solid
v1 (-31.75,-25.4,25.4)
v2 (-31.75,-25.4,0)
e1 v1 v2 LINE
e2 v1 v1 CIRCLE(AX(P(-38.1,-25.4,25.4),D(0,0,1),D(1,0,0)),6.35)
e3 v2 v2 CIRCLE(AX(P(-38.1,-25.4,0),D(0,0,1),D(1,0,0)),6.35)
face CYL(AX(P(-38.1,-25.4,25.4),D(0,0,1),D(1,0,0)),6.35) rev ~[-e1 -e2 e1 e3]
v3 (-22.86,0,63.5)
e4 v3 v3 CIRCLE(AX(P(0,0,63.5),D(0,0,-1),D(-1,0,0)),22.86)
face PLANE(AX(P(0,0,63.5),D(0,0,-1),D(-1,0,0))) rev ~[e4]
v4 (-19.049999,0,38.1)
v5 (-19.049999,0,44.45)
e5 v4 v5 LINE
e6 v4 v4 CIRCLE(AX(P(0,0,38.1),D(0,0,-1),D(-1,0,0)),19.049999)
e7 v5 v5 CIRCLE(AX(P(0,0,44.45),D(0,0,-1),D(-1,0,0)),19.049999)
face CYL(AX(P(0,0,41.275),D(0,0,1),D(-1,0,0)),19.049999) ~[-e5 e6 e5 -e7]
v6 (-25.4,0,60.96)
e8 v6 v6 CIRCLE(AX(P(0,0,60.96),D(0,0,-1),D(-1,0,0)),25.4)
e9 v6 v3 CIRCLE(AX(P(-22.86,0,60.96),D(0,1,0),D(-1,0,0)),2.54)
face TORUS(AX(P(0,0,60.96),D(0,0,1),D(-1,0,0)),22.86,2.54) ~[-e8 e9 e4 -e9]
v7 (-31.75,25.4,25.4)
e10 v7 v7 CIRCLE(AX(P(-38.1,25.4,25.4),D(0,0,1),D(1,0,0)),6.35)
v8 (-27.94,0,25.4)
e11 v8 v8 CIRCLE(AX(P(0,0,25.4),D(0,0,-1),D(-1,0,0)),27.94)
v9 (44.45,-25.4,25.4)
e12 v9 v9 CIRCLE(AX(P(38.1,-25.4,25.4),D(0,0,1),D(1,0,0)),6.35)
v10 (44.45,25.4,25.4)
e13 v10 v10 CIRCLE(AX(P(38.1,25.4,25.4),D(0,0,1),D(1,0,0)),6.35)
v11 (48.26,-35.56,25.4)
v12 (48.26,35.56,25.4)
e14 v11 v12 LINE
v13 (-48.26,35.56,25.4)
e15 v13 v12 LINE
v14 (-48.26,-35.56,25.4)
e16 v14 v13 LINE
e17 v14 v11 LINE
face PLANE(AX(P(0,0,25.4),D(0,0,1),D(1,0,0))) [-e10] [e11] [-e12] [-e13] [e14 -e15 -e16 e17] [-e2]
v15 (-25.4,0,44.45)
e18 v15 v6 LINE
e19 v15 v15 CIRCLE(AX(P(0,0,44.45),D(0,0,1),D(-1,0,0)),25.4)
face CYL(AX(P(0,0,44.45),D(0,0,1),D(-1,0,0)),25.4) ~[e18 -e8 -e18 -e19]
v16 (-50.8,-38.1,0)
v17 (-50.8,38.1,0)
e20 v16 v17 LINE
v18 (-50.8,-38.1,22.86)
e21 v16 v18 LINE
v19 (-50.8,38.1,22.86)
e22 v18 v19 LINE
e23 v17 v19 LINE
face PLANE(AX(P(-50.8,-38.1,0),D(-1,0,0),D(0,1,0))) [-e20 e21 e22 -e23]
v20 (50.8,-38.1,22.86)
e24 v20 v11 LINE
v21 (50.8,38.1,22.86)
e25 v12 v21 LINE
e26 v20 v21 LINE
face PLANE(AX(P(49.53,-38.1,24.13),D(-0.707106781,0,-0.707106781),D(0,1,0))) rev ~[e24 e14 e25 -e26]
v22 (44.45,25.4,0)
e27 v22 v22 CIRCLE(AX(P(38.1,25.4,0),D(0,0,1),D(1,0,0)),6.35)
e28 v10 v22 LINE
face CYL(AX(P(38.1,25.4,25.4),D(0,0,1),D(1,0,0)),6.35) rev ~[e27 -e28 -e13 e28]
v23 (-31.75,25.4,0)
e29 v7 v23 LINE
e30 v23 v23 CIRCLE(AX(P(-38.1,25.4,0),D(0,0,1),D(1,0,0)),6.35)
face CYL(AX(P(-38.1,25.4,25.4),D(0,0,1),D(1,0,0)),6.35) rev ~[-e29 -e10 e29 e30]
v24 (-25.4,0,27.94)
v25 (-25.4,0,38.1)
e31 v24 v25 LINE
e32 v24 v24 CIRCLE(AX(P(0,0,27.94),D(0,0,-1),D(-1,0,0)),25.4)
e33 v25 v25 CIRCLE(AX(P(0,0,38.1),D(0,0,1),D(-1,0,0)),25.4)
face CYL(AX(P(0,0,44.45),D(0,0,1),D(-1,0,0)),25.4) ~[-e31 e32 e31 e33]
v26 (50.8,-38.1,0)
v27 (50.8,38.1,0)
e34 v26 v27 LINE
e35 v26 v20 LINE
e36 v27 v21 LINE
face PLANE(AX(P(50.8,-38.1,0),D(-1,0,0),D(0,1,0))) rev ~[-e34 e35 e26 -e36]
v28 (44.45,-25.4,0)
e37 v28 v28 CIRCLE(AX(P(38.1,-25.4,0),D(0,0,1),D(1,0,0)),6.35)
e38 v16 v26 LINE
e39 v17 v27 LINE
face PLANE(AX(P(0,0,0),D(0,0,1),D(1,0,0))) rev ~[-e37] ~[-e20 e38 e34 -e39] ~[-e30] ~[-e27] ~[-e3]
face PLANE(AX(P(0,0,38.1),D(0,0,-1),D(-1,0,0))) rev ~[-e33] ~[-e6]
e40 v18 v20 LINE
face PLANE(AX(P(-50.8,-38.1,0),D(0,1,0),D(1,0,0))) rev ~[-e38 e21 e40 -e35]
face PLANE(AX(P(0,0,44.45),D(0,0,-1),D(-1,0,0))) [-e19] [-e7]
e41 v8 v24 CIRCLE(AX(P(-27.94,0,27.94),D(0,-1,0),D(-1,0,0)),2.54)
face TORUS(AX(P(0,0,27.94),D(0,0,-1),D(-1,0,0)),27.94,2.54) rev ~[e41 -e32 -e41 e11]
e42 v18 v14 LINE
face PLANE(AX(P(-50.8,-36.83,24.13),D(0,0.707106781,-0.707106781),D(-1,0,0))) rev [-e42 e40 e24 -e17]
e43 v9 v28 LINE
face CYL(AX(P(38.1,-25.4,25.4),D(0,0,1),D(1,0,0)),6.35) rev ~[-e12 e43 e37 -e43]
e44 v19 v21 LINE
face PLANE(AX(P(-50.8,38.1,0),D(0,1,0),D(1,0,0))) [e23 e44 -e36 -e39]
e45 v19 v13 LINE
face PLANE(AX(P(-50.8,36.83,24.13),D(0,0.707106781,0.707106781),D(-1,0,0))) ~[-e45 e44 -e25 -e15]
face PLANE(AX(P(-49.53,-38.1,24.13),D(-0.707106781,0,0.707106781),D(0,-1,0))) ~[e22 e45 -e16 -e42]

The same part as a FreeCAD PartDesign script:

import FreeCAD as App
import Part
import Sketcher

V = App.Vector
Q = App.Units.Quantity


def edges_at(feature, points):
    """Names of the edges that pass closest to the given points."""
    edges = feature.Shape.Edges
    near = lambda p: min(range(len(edges)), key=lambda i: edges[i].distToShape(Part.Vertex(*p))[0])
    return sorted({f"Edge{near(p) + 1}" for p in points})

doc = App.newDocument("Part")
body = doc.addObject("PartDesign::Body", "Body")

# Sketch on XY plane
sketch1 = doc.addObject("Sketcher::SketchObject", "Sketch")
body.addObject(sketch1)
sketch1.AttachmentSupport = (doc.XY_Plane, [""])
sketch1.MapMode = "FlatFace"
sketch1.addGeometry(Part.LineSegment(V(-50.8, 38.1, 0), V(-50.8, -38.1, 0)), False)
sketch1.addGeometry(Part.LineSegment(V(-50.8, -38.1, 0), V(50.8, -38.1, 0)), False)
sketch1.addGeometry(Part.LineSegment(V(50.8, -38.1, 0), V(50.8, 38.1, 0)), False)
sketch1.addGeometry(Part.LineSegment(V(50.8, 38.1, 0), V(-50.8, 38.1, 0)), False)
sketch1.addConstraint(Sketcher.Constraint("Coincident", 0, 2, 1, 1))
sketch1.addConstraint(Sketcher.Constraint("Coincident", 1, 2, 2, 1))
sketch1.addConstraint(Sketcher.Constraint("Coincident", 2, 2, 3, 1))
sketch1.addConstraint(Sketcher.Constraint("Coincident", 3, 2, 0, 1))
sketch1.addConstraint(Sketcher.Constraint("Vertical", 0))
sketch1.addConstraint(Sketcher.Constraint("Horizontal", 1))
sketch1.addConstraint(Sketcher.Constraint("Vertical", 2))
sketch1.addConstraint(Sketcher.Constraint("Horizontal", 3))
sketch1.addConstraint(Sketcher.Constraint("Symmetric", 0, 2, 2, 2, -1, 1))
sketch1.addConstraint(Sketcher.Constraint("DistanceX", 1, 1, 1, 2, Q("4 in")))
sketch1.addConstraint(Sketcher.Constraint("DistanceY", 0, 2, 0, 1, Q("3 in")))
pad1 = doc.addObject("PartDesign::Pad", "Pad")
body.addObject(pad1)
pad1.Profile = sketch1
pad1.Length = Q("1 in")

# Sketch on XY plane
sketch2 = doc.addObject("Sketcher::SketchObject", "Sketch001")
body.addObject(sketch2)
sketch2.AttachmentSupport = (doc.XY_Plane, [""])
sketch2.MapMode = "FlatFace"
sketch2.AttachmentOffset = App.Placement(V(0, 0, 1 * 25.4), App.Rotation())
sketch2.addGeometry(Part.Circle(V(-38.1, 25.4, 0), V(0, 0, 1), 6.35), False)
sketch2.addGeometry(Part.Circle(V(38.1, 25.4, 0), V(0, 0, 1), 6.35), False)
sketch2.addGeometry(Part.Circle(V(38.1, -25.4, 0), V(0, 0, 1), 6.35), False)
sketch2.addGeometry(Part.Circle(V(-38.1, -25.4, 0), V(0, 0, 1), 6.35), False)
sketch2.addConstraint(Sketcher.Constraint("Equal", 0, 1))
sketch2.addConstraint(Sketcher.Constraint("Equal", 1, 2))
sketch2.addConstraint(Sketcher.Constraint("Equal", 2, 3))
sketch2.addConstraint(Sketcher.Constraint("Symmetric", 0, 3, 2, 3, -1, 1))
sketch2.addConstraint(Sketcher.Constraint("Symmetric", 1, 3, 3, 3, -1, 1))
sketch2.addConstraint(Sketcher.Constraint("Symmetric", 0, 3, 1, 3, -2))
sketch2.addConstraint(Sketcher.Constraint("Diameter", 0, Q("0.5 in")))
sketch2.addConstraint(Sketcher.Constraint("DistanceY", -1, 1, 0, 3, Q("1 in")))
sketch2.addConstraint(Sketcher.Constraint("DistanceX", 0, 3, 1, 3, Q("3 in")))
pocket1 = doc.addObject("PartDesign::Pocket", "Pocket")
body.addObject(pocket1)
pocket1.Profile = sketch2
pocket1.Length = Q("1 in")

# Sketch on XZ plane
sketch3 = doc.addObject("Sketcher::SketchObject", "Sketch002")
body.addObject(sketch3)
sketch3.AttachmentSupport = (doc.XZ_Plane, [""])
sketch3.MapMode = "FlatFace"
sketch3.addGeometry(Part.LineSegment(V(-25.4, 63.5, 0), V(-25.4, 25.4, 0)), False)
sketch3.addGeometry(Part.LineSegment(V(-25.4, 25.4, 0), V(0, 25.4, 0)), False)
sketch3.addGeometry(Part.LineSegment(V(0, 25.4, 0), V(0, 63.5, 0)), False)
sketch3.addGeometry(Part.LineSegment(V(0, 63.5, 0), V(-25.4, 63.5, 0)), False)
sketch3.addConstraint(Sketcher.Constraint("Coincident", 0, 2, 1, 1))
sketch3.addConstraint(Sketcher.Constraint("Coincident", 1, 2, 2, 1))
sketch3.addConstraint(Sketcher.Constraint("Coincident", 2, 2, 3, 1))
sketch3.addConstraint(Sketcher.Constraint("Coincident", 3, 2, 0, 1))
sketch3.addConstraint(Sketcher.Constraint("Vertical", 0))
sketch3.addConstraint(Sketcher.Constraint("Horizontal", 1))
sketch3.addConstraint(Sketcher.Constraint("Vertical", 2))
sketch3.addConstraint(Sketcher.Constraint("Horizontal", 3))
sketch3.addConstraint(Sketcher.Constraint("PointOnObject", 1, 2, -2))
sketch3.addConstraint(Sketcher.Constraint("DistanceX", 1, 1, 1, 2, Q("1 in")))
sketch3.addConstraint(Sketcher.Constraint("DistanceY", 0, 2, 0, 1, Q("1.5 in")))
sketch3.addConstraint(Sketcher.Constraint("DistanceY", -1, 1, 0, 2, Q("1 in")))
revolution = doc.addObject("PartDesign::Revolution", "Revolution")
body.addObject(revolution)
revolution.Profile = sketch3
revolution.ReferenceAxis = (sketch3, ["V_Axis"])
revolution.Angle = 360

# Sketch on XZ plane
sketch4 = doc.addObject("Sketcher::SketchObject", "Sketch003")
body.addObject(sketch4)
sketch4.AttachmentSupport = (doc.XZ_Plane, [""])
sketch4.MapMode = "FlatFace"
sketch4.addGeometry(Part.LineSegment(V(-42.06089, 44.45, 0), V(-42.06089, 38.1, 0)), False)
sketch4.addGeometry(Part.LineSegment(V(-42.06089, 38.1, 0), V(-19.049999, 38.1, 0)), False)
sketch4.addGeometry(Part.LineSegment(V(-19.049999, 38.1, 0), V(-19.049999, 44.45, 0)), False)
sketch4.addGeometry(Part.LineSegment(V(-19.049999, 44.45, 0), V(-42.06089, 44.45, 0)), False)
sketch4.addConstraint(Sketcher.Constraint("Coincident", 0, 2, 1, 1))
sketch4.addConstraint(Sketcher.Constraint("Coincident", 1, 2, 2, 1))
sketch4.addConstraint(Sketcher.Constraint("Coincident", 2, 2, 3, 1))
sketch4.addConstraint(Sketcher.Constraint("Coincident", 3, 2, 0, 1))
sketch4.addConstraint(Sketcher.Constraint("Vertical", 0))
sketch4.addConstraint(Sketcher.Constraint("Horizontal", 1))
sketch4.addConstraint(Sketcher.Constraint("Vertical", 2))
sketch4.addConstraint(Sketcher.Constraint("Horizontal", 3))
sketch4.addConstraint(Sketcher.Constraint("DistanceY", 0, 2, 0, 1, Q("0.25 in")))
sketch4.addConstraint(Sketcher.Constraint("DistanceY", -1, 1, 0, 2, Q("1.5 in")))
sketch4.addConstraint(Sketcher.Constraint("DistanceX", 1, 2, -1, 1, Q("0.75 in")))
sketch4.addConstraint(Sketcher.Constraint("DistanceX", 1, 1, 1, 2, 23.010891))
groove = doc.addObject("PartDesign::Groove", "Groove")
body.addObject(groove)
groove.Profile = sketch4
groove.ReferenceAxis = (sketch4, ["V_Axis"])
groove.Angle = 360
doc.recompute()

chamfer = doc.addObject("PartDesign::Chamfer", "Chamfer")
body.addObject(chamfer)
chamfer.Base = (groove, edges_at(groove, [
    (0, -38.1, 25.4),
    (50.8, 0, 25.4),
    (-50.8, 0, 25.4),
    (0, 38.1, 25.4),
]))
chamfer.Size = Q("0.1 in")
doc.recompute()

fillet = doc.addObject("PartDesign::Fillet", "Fillet")
body.addObject(fillet)
fillet.Base = (chamfer, edges_at(chamfer, [(25.4, 0, 63.5), (25.4, 0, 25.4)]))
fillet.Radius = Q("0.1 in")

doc.recompute()
